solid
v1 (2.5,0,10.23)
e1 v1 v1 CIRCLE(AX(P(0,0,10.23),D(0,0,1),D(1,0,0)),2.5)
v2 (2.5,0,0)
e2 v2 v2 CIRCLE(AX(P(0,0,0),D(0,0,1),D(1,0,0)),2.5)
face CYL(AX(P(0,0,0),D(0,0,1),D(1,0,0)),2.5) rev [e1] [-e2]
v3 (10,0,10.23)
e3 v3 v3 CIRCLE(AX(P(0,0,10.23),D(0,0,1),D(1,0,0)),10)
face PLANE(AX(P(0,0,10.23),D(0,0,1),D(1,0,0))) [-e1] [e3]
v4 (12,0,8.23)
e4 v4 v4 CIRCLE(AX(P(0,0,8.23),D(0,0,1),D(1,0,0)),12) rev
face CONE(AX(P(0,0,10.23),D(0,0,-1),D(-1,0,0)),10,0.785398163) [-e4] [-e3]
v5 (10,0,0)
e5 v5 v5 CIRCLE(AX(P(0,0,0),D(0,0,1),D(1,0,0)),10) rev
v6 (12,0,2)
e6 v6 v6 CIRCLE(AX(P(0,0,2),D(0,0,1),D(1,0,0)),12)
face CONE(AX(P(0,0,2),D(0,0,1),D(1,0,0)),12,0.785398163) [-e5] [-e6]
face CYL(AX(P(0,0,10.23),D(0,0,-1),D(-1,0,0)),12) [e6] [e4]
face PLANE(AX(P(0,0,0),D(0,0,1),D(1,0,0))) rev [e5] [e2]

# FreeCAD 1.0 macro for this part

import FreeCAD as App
import Part
import Sketcher

V = App.Vector


def edges_at(feature, points):
    """Names of the edges that pass closest to the given points."""
    edges = feature.Shape.Edges
    near = lambda p: min(range(len(edges)), key=lambda i: edges[i].distToShape(Part.Vertex(*p))[0])
    return sorted({f"Edge{near(p) + 1}" for p in points})

doc = App.newDocument("Part")
body = doc.addObject("PartDesign::Body", "Body")

# Sketch on XY plane
sketch1 = body.newObject("Sketcher::SketchObject", "Sketch")
sketch1.AttachmentSupport = (doc.getObject("XY_Plane"), [""])
sketch1.MapMode = "FlatFace"
sketch1.addGeometry(Part.Circle(V(0, 0, 0), V(0, 0, 1), 12), False)
sketch1.addConstraint([
    Sketcher.Constraint("Coincident", 0, 3, -1, 1),
    Sketcher.Constraint("Diameter", 0, 24.0),
])
pad1 = body.newObject("PartDesign::Pad", "Pad")
pad1.Profile = sketch1
pad1.Length = 10.23

# Sketch on XY plane
sketch2 = body.newObject("Sketcher::SketchObject", "Sketch001")
sketch2.AttachmentSupport = (doc.getObject("XY_Plane"), [""])
sketch2.MapMode = "FlatFace"
sketch2.AttachmentOffset = App.Placement(V(0, 0, 10.23), App.Rotation())
sketch2.addGeometry(Part.Circle(V(0, 0, 0), V(0, 0, 1), 2.5), False)
sketch2.addConstraint([
    Sketcher.Constraint("Coincident", 0, 3, -1, 1),
    Sketcher.Constraint("Diameter", 0, 5.0),
])
pocket1 = body.newObject("PartDesign::Pocket", "Pocket")
pocket1.Profile = sketch2
pocket1.Type = "ThroughAll"
doc.recompute()

chamfer = body.newObject("PartDesign::Chamfer", "Chamfer")
chamfer.Base = (pocket1, edges_at(pocket1, [(-12, 0, 10.23)]))
chamfer.Size = 2
doc.recompute()

chamfer2 = body.newObject("PartDesign::Chamfer", "Chamfer001")
chamfer2.Base = (chamfer, edges_at(chamfer, [(-12, 0, 0)]))
chamfer2.Size = 2

doc.recompute()
